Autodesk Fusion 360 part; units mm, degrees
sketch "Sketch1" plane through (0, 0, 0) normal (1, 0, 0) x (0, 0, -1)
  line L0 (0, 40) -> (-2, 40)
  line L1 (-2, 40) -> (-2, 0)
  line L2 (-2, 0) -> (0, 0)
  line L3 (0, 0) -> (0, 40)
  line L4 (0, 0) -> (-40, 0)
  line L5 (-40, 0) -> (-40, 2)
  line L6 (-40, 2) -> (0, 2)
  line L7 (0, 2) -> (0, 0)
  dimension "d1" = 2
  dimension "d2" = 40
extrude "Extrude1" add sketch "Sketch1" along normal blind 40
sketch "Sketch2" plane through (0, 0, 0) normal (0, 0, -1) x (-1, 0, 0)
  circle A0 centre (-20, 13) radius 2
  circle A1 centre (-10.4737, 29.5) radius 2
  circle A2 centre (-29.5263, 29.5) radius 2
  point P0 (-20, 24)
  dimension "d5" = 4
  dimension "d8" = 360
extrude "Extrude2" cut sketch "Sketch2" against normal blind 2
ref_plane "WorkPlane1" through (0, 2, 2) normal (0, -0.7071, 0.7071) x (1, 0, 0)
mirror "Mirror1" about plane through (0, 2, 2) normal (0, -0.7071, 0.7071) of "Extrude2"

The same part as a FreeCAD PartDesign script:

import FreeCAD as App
import Part
import Sketcher
Q = App.Units.Quantity

doc = App.newDocument("Part")
body = doc.addObject("PartDesign::Body", "Body")

# Sketch on YZ plane
sketch1 = body.newObject("Sketcher::SketchObject", "Sketch")
sketch1.AttachmentSupport = (doc.getObject("YZ_Plane"), [""])
sketch1.MapMode = "FlatFace"
sketch1.addGeometry([
    Part.LineSegment(App.Vector(40, 0, 0), App.Vector(40, 2, 0)),  # 0
    Part.LineSegment(App.Vector(40, 2, 0), App.Vector(2, 2, 0)),  # 1
    Part.LineSegment(App.Vector(2, 2, 0), App.Vector(2, 40, 0)),  # 2
    Part.LineSegment(App.Vector(2, 40, 0), App.Vector(0, 40, 0)),  # 3
    Part.LineSegment(App.Vector(0, 40, 0), App.Vector(0, 0, 0)),  # 4
    Part.LineSegment(App.Vector(0, 0, 0), App.Vector(40, 0, 0)),  # 5
], False)
sketch1.addConstraint([
    Sketcher.Constraint("Coincident", 0, 2, 1, 1),
    Sketcher.Constraint("Coincident", 1, 2, 2, 1),
    Sketcher.Constraint("Coincident", 2, 2, 3, 1),
    Sketcher.Constraint("Coincident", 3, 2, 4, 1),
    Sketcher.Constraint("Coincident", 4, 2, 5, 1),
    Sketcher.Constraint("Coincident", 5, 2, 0, 1),
    Sketcher.Constraint("Vertical", 0),
    Sketcher.Constraint("Horizontal", 1),
    Sketcher.Constraint("Vertical", 2),
    Sketcher.Constraint("Horizontal", 3),
    Sketcher.Constraint("Vertical", 4),
    Sketcher.Constraint("Horizontal", 5),
    Sketcher.Constraint("Coincident", 4, 2, -1, 1),
    Sketcher.Constraint("Equal", 3, 0),
    Sketcher.Constraint("Equal", 1, 2),
    Sketcher.Constraint("DistanceX", 3, 2, 3, 1, Q("2 mm")),
    Sketcher.Constraint("DistanceX", 5, 1, 5, 2, Q("40 mm")),
])
pad1 = body.newObject("PartDesign::Pad", "Pad")
pad1.Profile = sketch1
pad1.Length = 40

# Sketch on XY plane
sketch2 = body.newObject("Sketcher::SketchObject", "Sketch001")
sketch2.AttachmentSupport = (doc.getObject("XY_Plane"), [""])
sketch2.MapMode = "FlatFace"
sketch2.addGeometry([
    Part.Circle(App.Vector(20, 13, 0), App.Vector(0, 0, 1), 2),
    Part.Circle(App.Vector(10.4737, 29.5, 0), App.Vector(0, 0, 1), 2),
    Part.Circle(App.Vector(29.5263, 29.5, 0), App.Vector(0, 0, 1), 2),
], False)
sketch2.addConstraint([
    Sketcher.Constraint("Equal", 0, 1),
    Sketcher.Constraint("Equal", 1, 2),
    Sketcher.Constraint("Horizontal", 1, 3, 2, 3),
    Sketcher.Constraint("Diameter", 0, Q("4 mm")),
    Sketcher.Constraint("DistanceX", -1, 1, 0, 3, Q("20 mm")),
    Sketcher.Constraint("DistanceY", -1, 1, 0, 3, Q("13 mm")),
    Sketcher.Constraint("DistanceY", -1, 1, 1, 3, Q("29.5 mm")),
    Sketcher.Constraint("DistanceX", -1, 1, 1, 3, Q("10.4737 mm")),
    Sketcher.Constraint("DistanceX", -1, 1, 2, 3, Q("29.5263 mm")),
])
pocket1 = body.newObject("PartDesign::Pocket", "Pocket")
pocket1.Profile = sketch2
pocket1.Length = 2
pocket1.Reversed = True
doc.recompute()

datumplane = body.newObject("PartDesign::Plane", "DatumPlane")
datumplane.Placement = App.Placement(App.Vector(0, 0, 0), App.Rotation(App.Vector(0, -0.707106781, -0.707106781), App.Vector(-1, 0, 0), App.Vector(0, 0.707106781, -0.707106781), "ZXY"))
mirrored = body.newObject("PartDesign::Mirrored", "Mirrored")
mirrored.Originals = [pocket1]
mirrored.MirrorPlane = (datumplane, [""])
body.Tip = mirrored

doc.recompute()
